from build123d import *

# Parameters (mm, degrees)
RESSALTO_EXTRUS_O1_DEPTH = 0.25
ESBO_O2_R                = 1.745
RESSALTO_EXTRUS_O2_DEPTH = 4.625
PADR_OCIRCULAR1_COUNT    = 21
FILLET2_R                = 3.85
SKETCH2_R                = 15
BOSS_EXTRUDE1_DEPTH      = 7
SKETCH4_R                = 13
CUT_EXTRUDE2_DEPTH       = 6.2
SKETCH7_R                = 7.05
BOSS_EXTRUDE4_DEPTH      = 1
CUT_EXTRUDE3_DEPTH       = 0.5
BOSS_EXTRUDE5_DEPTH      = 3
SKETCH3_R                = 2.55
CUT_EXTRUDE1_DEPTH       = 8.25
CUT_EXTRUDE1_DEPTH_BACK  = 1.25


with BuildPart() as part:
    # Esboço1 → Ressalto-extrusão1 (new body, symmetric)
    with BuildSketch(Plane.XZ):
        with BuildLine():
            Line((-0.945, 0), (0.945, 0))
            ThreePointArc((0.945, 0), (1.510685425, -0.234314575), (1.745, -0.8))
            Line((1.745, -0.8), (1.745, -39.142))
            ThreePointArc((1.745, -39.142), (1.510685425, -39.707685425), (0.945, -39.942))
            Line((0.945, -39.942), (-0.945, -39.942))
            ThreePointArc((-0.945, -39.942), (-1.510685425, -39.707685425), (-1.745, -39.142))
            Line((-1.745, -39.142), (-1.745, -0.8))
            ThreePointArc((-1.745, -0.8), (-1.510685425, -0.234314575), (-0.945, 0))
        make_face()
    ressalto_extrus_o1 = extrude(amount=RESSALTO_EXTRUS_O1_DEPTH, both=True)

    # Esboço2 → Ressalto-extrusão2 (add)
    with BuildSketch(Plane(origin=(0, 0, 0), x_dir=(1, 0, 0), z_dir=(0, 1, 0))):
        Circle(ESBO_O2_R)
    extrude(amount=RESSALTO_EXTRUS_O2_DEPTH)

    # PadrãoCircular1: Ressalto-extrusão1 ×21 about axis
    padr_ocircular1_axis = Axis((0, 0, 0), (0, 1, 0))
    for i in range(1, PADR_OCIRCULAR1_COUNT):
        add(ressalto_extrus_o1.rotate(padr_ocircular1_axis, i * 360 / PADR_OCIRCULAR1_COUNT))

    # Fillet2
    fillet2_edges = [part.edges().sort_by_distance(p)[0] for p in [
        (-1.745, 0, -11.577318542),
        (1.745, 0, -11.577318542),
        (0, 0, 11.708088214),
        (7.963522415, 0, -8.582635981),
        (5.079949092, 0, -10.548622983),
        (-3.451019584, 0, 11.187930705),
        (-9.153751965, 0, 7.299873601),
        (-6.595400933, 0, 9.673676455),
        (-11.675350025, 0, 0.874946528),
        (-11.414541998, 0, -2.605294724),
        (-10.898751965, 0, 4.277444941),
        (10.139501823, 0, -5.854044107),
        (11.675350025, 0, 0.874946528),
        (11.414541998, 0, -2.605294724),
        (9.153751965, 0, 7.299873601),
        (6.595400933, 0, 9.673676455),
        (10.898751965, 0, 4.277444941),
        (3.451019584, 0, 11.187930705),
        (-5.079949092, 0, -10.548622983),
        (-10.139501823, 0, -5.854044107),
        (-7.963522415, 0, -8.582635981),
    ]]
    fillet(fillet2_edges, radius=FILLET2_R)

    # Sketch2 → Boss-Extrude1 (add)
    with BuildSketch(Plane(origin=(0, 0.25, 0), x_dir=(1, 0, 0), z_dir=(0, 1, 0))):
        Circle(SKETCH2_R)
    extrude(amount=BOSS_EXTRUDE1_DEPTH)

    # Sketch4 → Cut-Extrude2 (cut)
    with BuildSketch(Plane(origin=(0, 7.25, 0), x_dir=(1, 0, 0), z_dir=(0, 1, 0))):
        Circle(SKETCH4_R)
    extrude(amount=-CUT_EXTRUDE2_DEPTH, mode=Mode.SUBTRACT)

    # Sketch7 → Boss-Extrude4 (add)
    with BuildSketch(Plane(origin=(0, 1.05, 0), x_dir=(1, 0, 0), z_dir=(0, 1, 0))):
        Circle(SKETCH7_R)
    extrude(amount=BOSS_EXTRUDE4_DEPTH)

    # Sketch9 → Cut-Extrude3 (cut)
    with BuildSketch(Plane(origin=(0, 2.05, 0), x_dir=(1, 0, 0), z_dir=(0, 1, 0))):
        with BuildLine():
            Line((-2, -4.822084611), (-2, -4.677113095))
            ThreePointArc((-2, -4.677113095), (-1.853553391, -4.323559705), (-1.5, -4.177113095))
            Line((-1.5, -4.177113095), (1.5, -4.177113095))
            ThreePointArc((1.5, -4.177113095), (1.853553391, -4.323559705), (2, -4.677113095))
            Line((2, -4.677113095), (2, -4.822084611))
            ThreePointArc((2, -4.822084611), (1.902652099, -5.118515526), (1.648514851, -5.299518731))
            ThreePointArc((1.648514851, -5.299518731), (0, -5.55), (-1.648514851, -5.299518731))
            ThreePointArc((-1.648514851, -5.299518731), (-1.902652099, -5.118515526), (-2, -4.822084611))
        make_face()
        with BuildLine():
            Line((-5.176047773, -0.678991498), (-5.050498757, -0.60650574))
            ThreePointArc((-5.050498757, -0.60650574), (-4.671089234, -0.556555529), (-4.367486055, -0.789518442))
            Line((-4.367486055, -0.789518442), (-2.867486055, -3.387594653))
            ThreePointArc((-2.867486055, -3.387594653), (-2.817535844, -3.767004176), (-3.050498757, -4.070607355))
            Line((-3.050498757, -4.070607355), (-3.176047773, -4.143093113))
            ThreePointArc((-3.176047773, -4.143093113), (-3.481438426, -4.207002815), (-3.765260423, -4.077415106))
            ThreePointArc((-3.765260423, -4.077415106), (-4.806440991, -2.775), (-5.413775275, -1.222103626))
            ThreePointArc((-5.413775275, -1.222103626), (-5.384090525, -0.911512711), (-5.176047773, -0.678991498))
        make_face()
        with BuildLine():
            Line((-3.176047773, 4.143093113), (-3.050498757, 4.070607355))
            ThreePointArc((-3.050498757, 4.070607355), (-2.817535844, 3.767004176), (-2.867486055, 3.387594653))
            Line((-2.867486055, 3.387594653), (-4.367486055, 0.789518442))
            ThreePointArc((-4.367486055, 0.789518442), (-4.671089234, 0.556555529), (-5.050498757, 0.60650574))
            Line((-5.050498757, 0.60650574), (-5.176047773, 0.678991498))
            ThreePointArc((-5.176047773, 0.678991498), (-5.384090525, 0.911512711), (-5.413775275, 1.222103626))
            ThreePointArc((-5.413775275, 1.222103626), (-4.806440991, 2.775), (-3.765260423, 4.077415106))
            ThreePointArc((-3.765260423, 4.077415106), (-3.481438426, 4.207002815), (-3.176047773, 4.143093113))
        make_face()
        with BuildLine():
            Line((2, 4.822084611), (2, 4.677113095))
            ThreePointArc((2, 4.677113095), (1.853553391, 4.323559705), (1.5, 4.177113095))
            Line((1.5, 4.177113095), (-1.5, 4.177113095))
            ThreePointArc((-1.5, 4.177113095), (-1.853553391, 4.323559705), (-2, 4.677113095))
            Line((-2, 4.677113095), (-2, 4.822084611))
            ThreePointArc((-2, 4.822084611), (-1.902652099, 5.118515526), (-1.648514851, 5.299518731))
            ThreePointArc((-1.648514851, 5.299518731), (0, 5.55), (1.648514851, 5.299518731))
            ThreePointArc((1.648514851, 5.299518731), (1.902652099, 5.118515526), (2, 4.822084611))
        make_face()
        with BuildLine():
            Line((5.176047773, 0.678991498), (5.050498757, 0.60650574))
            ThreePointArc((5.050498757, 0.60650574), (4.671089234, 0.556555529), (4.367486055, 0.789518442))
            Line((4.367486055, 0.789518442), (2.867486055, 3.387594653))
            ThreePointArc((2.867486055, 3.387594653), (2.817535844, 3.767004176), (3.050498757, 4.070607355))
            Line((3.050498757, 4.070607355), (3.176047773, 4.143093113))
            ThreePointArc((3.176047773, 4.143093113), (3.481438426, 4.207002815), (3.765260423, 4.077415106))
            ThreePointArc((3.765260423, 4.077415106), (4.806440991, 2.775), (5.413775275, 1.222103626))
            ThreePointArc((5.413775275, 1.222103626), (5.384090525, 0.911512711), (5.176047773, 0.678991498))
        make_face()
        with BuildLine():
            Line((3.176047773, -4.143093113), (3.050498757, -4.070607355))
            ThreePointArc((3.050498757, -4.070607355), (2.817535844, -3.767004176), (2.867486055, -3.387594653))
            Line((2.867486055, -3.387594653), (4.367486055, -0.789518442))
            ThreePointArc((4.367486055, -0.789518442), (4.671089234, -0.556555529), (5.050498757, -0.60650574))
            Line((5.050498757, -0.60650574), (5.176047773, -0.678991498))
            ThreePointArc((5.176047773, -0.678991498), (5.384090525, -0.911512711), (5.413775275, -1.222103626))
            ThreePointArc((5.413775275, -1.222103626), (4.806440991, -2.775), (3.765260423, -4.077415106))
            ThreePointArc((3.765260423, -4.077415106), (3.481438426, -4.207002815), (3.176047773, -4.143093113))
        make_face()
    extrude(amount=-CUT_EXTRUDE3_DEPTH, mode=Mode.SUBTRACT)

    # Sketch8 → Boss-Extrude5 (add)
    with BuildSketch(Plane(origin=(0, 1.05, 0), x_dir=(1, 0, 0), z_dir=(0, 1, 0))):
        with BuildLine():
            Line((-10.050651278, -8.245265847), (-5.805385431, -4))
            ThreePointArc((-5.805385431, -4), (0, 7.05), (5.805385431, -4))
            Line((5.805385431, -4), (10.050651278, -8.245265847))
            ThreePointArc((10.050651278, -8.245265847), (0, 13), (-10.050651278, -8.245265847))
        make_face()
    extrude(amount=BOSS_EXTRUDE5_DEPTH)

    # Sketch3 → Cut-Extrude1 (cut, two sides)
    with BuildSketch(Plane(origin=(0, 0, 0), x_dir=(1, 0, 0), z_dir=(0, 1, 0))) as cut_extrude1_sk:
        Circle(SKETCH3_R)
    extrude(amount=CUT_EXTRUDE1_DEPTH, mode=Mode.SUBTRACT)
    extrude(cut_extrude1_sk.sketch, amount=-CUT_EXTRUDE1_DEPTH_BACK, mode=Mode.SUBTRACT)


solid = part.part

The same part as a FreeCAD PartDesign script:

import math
import FreeCAD as App
import Part
import Sketcher
Q = App.Units.Quantity


def edges_at(feature, points):
    """Names of the edges that pass closest to the given points."""
    edges = feature.Shape.Edges
    near = lambda p: min(range(len(edges)), key=lambda i: edges[i].distToShape(Part.Vertex(*p))[0])
    return sorted({f"Edge{near(p) + 1}" for p in points})

doc = App.newDocument("Part")
body = doc.addObject("PartDesign::Body", "Body")

# Sketch on XZ plane
sketch1 = doc.addObject("Sketcher::SketchObject", "Sketch")
body.addObject(sketch1)
sketch1.AttachmentSupport = (doc.XZ_Plane, [""])
sketch1.MapMode = "FlatFace"
sketch1.addGeometry(Part.LineSegment(App.Vector(0.9, 0, 0), App.Vector(-0.9, 0, 0)), False)
sketch1.addGeometry(Part.ArcOfCircle(Part.Circle(App.Vector(-0.9, -0.8, 0), App.Vector(0, 0, 1), 0.8), math.radians(90), math.radians(180)), False)
sketch1.addGeometry(Part.LineSegment(App.Vector(-1.7, -0.8, 0), App.Vector(-1.7, -39.1, 0)), False)
sketch1.addGeometry(Part.ArcOfCircle(Part.Circle(App.Vector(-0.9, -39.1, 0), App.Vector(0, 0, 1), 0.8), math.radians(180), math.radians(270)), False)
sketch1.addGeometry(Part.LineSegment(App.Vector(-0.9, -39.9, 0), App.Vector(0.9, -39.9, 0)), False)
sketch1.addGeometry(Part.ArcOfCircle(Part.Circle(App.Vector(0.9, -39.1, 0), App.Vector(0, 0, 1), 0.8), math.radians(-90), math.radians(0)), False)
sketch1.addGeometry(Part.LineSegment(App.Vector(1.7, -39.1, 0), App.Vector(1.7, -0.8, 0)), False)
sketch1.addGeometry(Part.ArcOfCircle(Part.Circle(App.Vector(0.9, -0.8, 0), App.Vector(0, 0, 1), 0.8), math.radians(0), math.radians(90)), False)
sketch1.addConstraint(Sketcher.Constraint("Tangent", 0, 2, 1, 1))
sketch1.addConstraint(Sketcher.Constraint("Tangent", 1, 2, 2, 1))
sketch1.addConstraint(Sketcher.Constraint("Tangent", 2, 2, 3, 1))
sketch1.addConstraint(Sketcher.Constraint("Tangent", 3, 2, 4, 1))
sketch1.addConstraint(Sketcher.Constraint("Tangent", 4, 2, 5, 1))
sketch1.addConstraint(Sketcher.Constraint("Tangent", 5, 2, 6, 1))
sketch1.addConstraint(Sketcher.Constraint("Tangent", 6, 2, 7, 1))
sketch1.addConstraint(Sketcher.Constraint("Tangent", 7, 2, 0, 1))
sketch1.addConstraint(Sketcher.Constraint("Horizontal", 0))
sketch1.addConstraint(Sketcher.Constraint("Vertical", 2))
sketch1.addConstraint(Sketcher.Constraint("Horizontal", 4))
sketch1.addConstraint(Sketcher.Constraint("Vertical", 6))
sketch1.addConstraint(Sketcher.Constraint("Equal", 1, 3))
sketch1.addConstraint(Sketcher.Constraint("Equal", 3, 5))
sketch1.addConstraint(Sketcher.Constraint("Equal", 5, 7))
sketch1.addConstraint(Sketcher.Constraint("Symmetric", 0, 2, 7, 2, -1, 1))
sketch1.addConstraint(Sketcher.Constraint("Radius", 1, 0.8))
sketch1.addConstraint(Sketcher.Constraint("DistanceX", 0, 2, 0, 1, 1.89))
sketch1.addConstraint(Sketcher.Constraint("DistanceY", 2, 2, 2, 1, 38.342))
pad1 = doc.addObject("PartDesign::Pad", "Pad")
body.addObject(pad1)
pad1.Profile = sketch1
pad1.Length = 0.5
pad1.Midplane = True

# Sketch on XZ plane
sketch2 = doc.addObject("Sketcher::SketchObject", "Sketch001")
body.addObject(sketch2)
sketch2.AttachmentSupport = (doc.XZ_Plane, [""])
sketch2.MapMode = "FlatFace"
sketch2.addGeometry(Part.Circle(App.Vector(0, 0, 0), App.Vector(0, 0, 1), 1.7), False)
sketch2.addConstraint(Sketcher.Constraint("Coincident", 0, 3, -1, 1))
sketch2.addConstraint(Sketcher.Constraint("Diameter", 0, 3.49))
pad2 = doc.addObject("PartDesign::Pad", "Pad001")
body.addObject(pad2)
pad2.Profile = sketch2
pad2.Length = 4.625
pad2.Reversed = True
doc.recompute()

polarpattern = doc.addObject("PartDesign::PolarPattern", "PolarPattern")
body.addObject(polarpattern)
polarpattern.Originals = [pad1]
polarpattern.Axis = (doc.Y_Axis, [""])
polarpattern.Angle = 360
polarpattern.Occurrences = 21
body.Tip = polarpattern
doc.recompute()

fillet = doc.addObject("PartDesign::Fillet", "Fillet")
body.addObject(fillet)
fillet.Base = (polarpattern, edges_at(polarpattern, [
    (-1.745, 0, -11.577),
    (1.745, 0, -11.577),
    (0, 0, 11.708),
    (7.964, 0, -8.583),
    (5.08, 0, -10.549),
    (-3.451, 0, 11.188),
    (-9.154, 0, 7.3),
    (-6.595, 0, 9.674),
    (-11.675, 0, 0.875),
    (-11.415, 0, -2.605),
    (-10.899, 0, 4.277),
    (10.14, 0, -5.854),
    (11.675, 0, 0.875),
    (11.415, 0, -2.605),
    (9.154, 0, 7.3),
    (6.595, 0, 9.674),
    (10.899, 0, 4.277),
    (3.451, 0, 11.188),
    (-5.08, 0, -10.549),
    (-10.14, 0, -5.854),
    (-7.964, 0, -8.583),
]))
fillet.Radius = 3.85

# Sketch on XZ plane
sketch3 = doc.addObject("Sketcher::SketchObject", "Sketch002")
body.addObject(sketch3)
sketch3.AttachmentSupport = (doc.XZ_Plane, [""])
sketch3.MapMode = "FlatFace"
sketch3.AttachmentOffset = App.Placement(App.Vector(0, 0, -0.25), App.Rotation())
sketch3.addGeometry(Part.Circle(App.Vector(0, 0, 0), App.Vector(0, 0, 1), 15), False)
sketch3.addConstraint(Sketcher.Constraint("Coincident", 0, 3, -1, 1))
sketch3.addConstraint(Sketcher.Constraint("Diameter", 0, 30.0))
pad3 = doc.addObject("PartDesign::Pad", "Pad002")
body.addObject(pad3)
pad3.Profile = sketch3
pad3.Length = 7
pad3.Reversed = True

# Sketch on XZ plane
sketch4 = doc.addObject("Sketcher::SketchObject", "Sketch003")
body.addObject(sketch4)
sketch4.AttachmentSupport = (doc.XZ_Plane, [""])
sketch4.MapMode = "FlatFace"
sketch4.AttachmentOffset = App.Placement(App.Vector(0, 0, -7.25), App.Rotation())
sketch4.addGeometry(Part.Circle(App.Vector(0, 0, 0), App.Vector(0, 0, 1), 13), False)
sketch4.addConstraint(Sketcher.Constraint("Coincident", 0, 3, -1, 1))
sketch4.addConstraint(Sketcher.Constraint("Diameter", 0, 26.0))
pocket1 = doc.addObject("PartDesign::Pocket", "Pocket")
body.addObject(pocket1)
pocket1.Profile = sketch4
pocket1.Length = 6.2
pocket1.Reversed = True

# Sketch on XZ plane
sketch5 = doc.addObject("Sketcher::SketchObject", "Sketch004")
body.addObject(sketch5)
sketch5.AttachmentSupport = (doc.XZ_Plane, [""])
sketch5.MapMode = "FlatFace"
sketch5.AttachmentOffset = App.Placement(App.Vector(0, 0, -1.05), App.Rotation())
sketch5.addGeometry(Part.Circle(App.Vector(0, 0, 0), App.Vector(0, 0, 1), 7), False)
sketch5.addConstraint(Sketcher.Constraint("Coincident", 0, 3, -1, 1))
sketch5.addConstraint(Sketcher.Constraint("Diameter", 0, 14.1))
pad4 = doc.addObject("PartDesign::Pad", "Pad003")
body.addObject(pad4)
pad4.Profile = sketch5
pad4.Length = 1
pad4.Reversed = True

# Sketch on XZ plane
sketch6 = doc.addObject("Sketcher::SketchObject", "Sketch005")
body.addObject(sketch6)
sketch6.AttachmentSupport = (doc.XZ_Plane, [""])
sketch6.MapMode = "FlatFace"
sketch6.AttachmentOffset = App.Placement(App.Vector(0, 0, -2.05), App.Rotation())
sketch6.addGeometry(Part.LineSegment(App.Vector(-2, 4.68, 0), App.Vector(-2, 4.82, 0)), False)
sketch6.addGeometry(Part.ArcOfCircle(Part.Circle(App.Vector(-1.5, 4.82, 0), App.Vector(0, 0, 1), 0.5), math.radians(107), math.radians(180)), False)
sketch6.addGeometry(Part.ArcOfCircle(Part.Circle(App.Vector(0, 0, 0), App.Vector(0, 0, 1), 5.55), math.radians(73), math.radians(107)), False)
sketch6.addGeometry(Part.ArcOfCircle(Part.Circle(App.Vector(1.5, 4.82, 0), App.Vector(0, 0, 1), 0.5), math.radians(0), math.radians(73)), False)
sketch6.addGeometry(Part.LineSegment(App.Vector(2, 4.82, 0), App.Vector(2, 4.68, 0)), False)
sketch6.addGeometry(Part.ArcOfCircle(Part.Circle(App.Vector(1.5, 4.68, 0), App.Vector(0, 0, 1), 0.5), math.radians(-90), math.radians(0)), False)
sketch6.addGeometry(Part.LineSegment(App.Vector(1.5, 4.18, 0), App.Vector(-1.5, 4.18, 0)), False)
sketch6.addGeometry(Part.ArcOfCircle(Part.Circle(App.Vector(-1.5, 4.68, 0), App.Vector(0, 0, 1), 0.5), math.radians(180), math.radians(270)), False)
sketch6.addGeometry(Part.LineSegment(App.Vector(-5.05, 0.61, 0), App.Vector(-5.18, 0.68, 0)), False)
sketch6.addGeometry(Part.ArcOfCircle(Part.Circle(App.Vector(-4.93, 1.11, 0), App.Vector(0, 0, 1), 0.5), math.radians(167), math.radians(240)), False)
sketch6.addGeometry(Part.ArcOfCircle(Part.Circle(App.Vector(0, 0, 0), App.Vector(0, 0, 1), 5.55), math.radians(133), math.radians(167)), False)
sketch6.addGeometry(Part.ArcOfCircle(Part.Circle(App.Vector(-3.43, 3.71, 0), App.Vector(0, 0, 1), 0.5), math.radians(60), math.radians(133)), False)
sketch6.addGeometry(Part.LineSegment(App.Vector(-3.18, 4.14, 0), App.Vector(-3.05, 4.07, 0)), False)
sketch6.addGeometry(Part.ArcOfCircle(Part.Circle(App.Vector(-3.3, 3.64, 0), App.Vector(0, 0, 1), 0.5), math.radians(-30), math.radians(60)), False)
sketch6.addGeometry(Part.LineSegment(App.Vector(-2.87, 3.39, 0), App.Vector(-4.37, 0.79, 0)), False)
sketch6.addGeometry(Part.ArcOfCircle(Part.Circle(App.Vector(-4.8, 1.04, 0), App.Vector(0, 0, 1), 0.5), math.radians(-120), math.radians(-30)), False)
sketch6.addGeometry(Part.LineSegment(App.Vector(-3.05, -4.07, 0), App.Vector(-3.18, -4.14, 0)), False)
sketch6.addGeometry(Part.ArcOfCircle(Part.Circle(App.Vector(-3.43, -3.71, 0), App.Vector(0, 0, 1), 0.5), math.radians(-133), math.radians(-60)), False)
sketch6.addGeometry(Part.ArcOfCircle(Part.Circle(App.Vector(0, 0, 0), App.Vector(0, 0, 1), 5.55), math.radians(-167), math.radians(-133)), False)
sketch6.addGeometry(Part.ArcOfCircle(Part.Circle(App.Vector(-4.93, -1.11, 0), App.Vector(0, 0, 1), 0.5), math.radians(120), math.radians(193)), False)
sketch6.addGeometry(Part.LineSegment(App.Vector(-5.18, -0.68, 0), App.Vector(-5.05, -0.61, 0)), False)
sketch6.addGeometry(Part.ArcOfCircle(Part.Circle(App.Vector(-4.8, -1.04, 0), App.Vector(0, 0, 1), 0.5), math.radians(30), math.radians(120)), False)
sketch6.addGeometry(Part.LineSegment(App.Vector(-4.37, -0.79, 0), App.Vector(-2.87, -3.39, 0)), False)
sketch6.addGeometry(Part.ArcOfCircle(Part.Circle(App.Vector(-3.3, -3.64, 0), App.Vector(0, 0, 1), 0.5), math.radians(-60), math.radians(30)), False)
sketch6.addGeometry(Part.LineSegment(App.Vector(2, -4.68, 0), App.Vector(2, -4.82, 0)), False)
sketch6.addGeometry(Part.ArcOfCircle(Part.Circle(App.Vector(1.5, -4.82, 0), App.Vector(0, 0, 1), 0.5), math.radians(-73), math.radians(0)), False)
sketch6.addGeometry(Part.ArcOfCircle(Part.Circle(App.Vector(0, 0, 0), App.Vector(0, 0, 1), 5.55), math.radians(-107), math.radians(-73)), False)
sketch6.addGeometry(Part.ArcOfCircle(Part.Circle(App.Vector(-1.5, -4.82, 0), App.Vector(0, 0, 1), 0.5), math.radians(180), math.radians(253)), False)
sketch6.addGeometry(Part.LineSegment(App.Vector(-2, -4.82, 0), App.Vector(-2, -4.68, 0)), False)
sketch6.addGeometry(Part.ArcOfCircle(Part.Circle(App.Vector(-1.5, -4.68, 0), App.Vector(0, 0, 1), 0.5), math.radians(90), math.radians(180)), False)
sketch6.addGeometry(Part.LineSegment(App.Vector(-1.5, -4.18, 0), App.Vector(1.5, -4.18, 0)), False)
sketch6.addGeometry(Part.ArcOfCircle(Part.Circle(App.Vector(1.5, -4.68, 0), App.Vector(0, 0, 1), 0.5), math.radians(0), math.radians(90)), False)
sketch6.addGeometry(Part.LineSegment(App.Vector(5.05, -0.61, 0), App.Vector(5.18, -0.68, 0)), False)
sketch6.addGeometry(Part.ArcOfCircle(Part.Circle(App.Vector(4.93, -1.11, 0), App.Vector(0, 0, 1), 0.5), math.radians(-13), math.radians(60)), False)
sketch6.addGeometry(Part.ArcOfCircle(Part.Circle(App.Vector(0, 0, 0), App.Vector(0, 0, 1), 5.55), math.radians(-47), math.radians(-13)), False)
sketch6.addGeometry(Part.ArcOfCircle(Part.Circle(App.Vector(3.43, -3.71, 0), App.Vector(0, 0, 1), 0.5), math.radians(-120), math.radians(-47)), False)
sketch6.addGeometry(Part.LineSegment(App.Vector(3.18, -4.14, 0), App.Vector(3.05, -4.07, 0)), False)
sketch6.addGeometry(Part.ArcOfCircle(Part.Circle(App.Vector(3.3, -3.64, 0), App.Vector(0, 0, 1), 0.5), math.radians(150), math.radians(240)), False)
sketch6.addGeometry(Part.LineSegment(App.Vector(2.87, -3.39, 0), App.Vector(4.37, -0.79, 0)), False)
sketch6.addGeometry(Part.ArcOfCircle(Part.Circle(App.Vector(4.8, -1.04, 0), App.Vector(0, 0, 1), 0.5), math.radians(60), math.radians(150)), False)
sketch6.addGeometry(Part.LineSegment(App.Vector(3.05, 4.07, 0), App.Vector(3.18, 4.14, 0)), False)
sketch6.addGeometry(Part.ArcOfCircle(Part.Circle(App.Vector(3.43, 3.71, 0), App.Vector(0, 0, 1), 0.5), math.radians(47), math.radians(120)), False)
sketch6.addGeometry(Part.ArcOfCircle(Part.Circle(App.Vector(0, 0, 0), App.Vector(0, 0, 1), 5.55), math.radians(13), math.radians(47)), False)
sketch6.addGeometry(Part.ArcOfCircle(Part.Circle(App.Vector(4.93, 1.11, 0), App.Vector(0, 0, 1), 0.5), math.radians(-60), math.radians(13)), False)
sketch6.addGeometry(Part.LineSegment(App.Vector(5.18, 0.68, 0), App.Vector(5.05, 0.61, 0)), False)
sketch6.addGeometry(Part.ArcOfCircle(Part.Circle(App.Vector(4.8, 1.04, 0), App.Vector(0, 0, 1), 0.5), math.radians(-150), math.radians(-60)), False)
sketch6.addGeometry(Part.LineSegment(App.Vector(4.37, 0.79, 0), App.Vector(2.87, 3.39, 0)), False)
sketch6.addGeometry(Part.ArcOfCircle(Part.Circle(App.Vector(3.3, 3.64, 0), App.Vector(0, 0, 1), 0.5), math.radians(120), math.radians(210)), False)
sketch6.addConstraint(Sketcher.Constraint("Tangent", 0, 2, 1, 2))
sketch6.addConstraint(Sketcher.Constraint("Tangent", 1, 1, 2, 2))
sketch6.addConstraint(Sketcher.Constraint("Tangent", 2, 1, 3, 2))
sketch6.addConstraint(Sketcher.Constraint("Tangent", 3, 1, 4, 1))
sketch6.addConstraint(Sketcher.Constraint("Tangent", 4, 2, 5, 2))
sketch6.addConstraint(Sketcher.Constraint("Tangent", 5, 1, 6, 1))
sketch6.addConstraint(Sketcher.Constraint("Tangent", 6, 2, 7, 2))
sketch6.addConstraint(Sketcher.Constraint("Tangent", 7, 1, 0, 1))
sketch6.addConstraint(Sketcher.Constraint("Tangent", 8, 2, 9, 2))
sketch6.addConstraint(Sketcher.Constraint("Tangent", 9, 1, 10, 2))
sketch6.addConstraint(Sketcher.Constraint("Tangent", 10, 1, 11, 2))
sketch6.addConstraint(Sketcher.Constraint("Tangent", 11, 1, 12, 1))
sketch6.addConstraint(Sketcher.Constraint("Tangent", 12, 2, 13, 2))
sketch6.addConstraint(Sketcher.Constraint("Tangent", 13, 1, 14, 1))
sketch6.addConstraint(Sketcher.Constraint("Tangent", 14, 2, 15, 2))
sketch6.addConstraint(Sketcher.Constraint("Tangent", 15, 1, 8, 1))
sketch6.addConstraint(Sketcher.Constraint("Tangent", 16, 2, 17, 2))
sketch6.addConstraint(Sketcher.Constraint("Tangent", 17, 1, 18, 2))
sketch6.addConstraint(Sketcher.Constraint("Tangent", 18, 1, 19, 2))
sketch6.addConstraint(Sketcher.Constraint("Tangent", 19, 1, 20, 1))
sketch6.addConstraint(Sketcher.Constraint("Tangent", 20, 2, 21, 2))
sketch6.addConstraint(Sketcher.Constraint("Tangent", 21, 1, 22, 1))
sketch6.addConstraint(Sketcher.Constraint("Tangent", 22, 2, 23, 2))
sketch6.addConstraint(Sketcher.Constraint("Tangent", 23, 1, 16, 1))
sketch6.addConstraint(Sketcher.Constraint("Tangent", 24, 2, 25, 2))
sketch6.addConstraint(Sketcher.Constraint("Tangent", 25, 1, 26, 2))
sketch6.addConstraint(Sketcher.Constraint("Tangent", 26, 1, 27, 2))
sketch6.addConstraint(Sketcher.Constraint("Tangent", 27, 1, 28, 1))
sketch6.addConstraint(Sketcher.Constraint("Tangent", 28, 2, 29, 2))
sketch6.addConstraint(Sketcher.Constraint("Tangent", 29, 1, 30, 1))
sketch6.addConstraint(Sketcher.Constraint("Tangent", 30, 2, 31, 2))
sketch6.addConstraint(Sketcher.Constraint("Tangent", 31, 1, 24, 1))
sketch6.addConstraint(Sketcher.Constraint("Tangent", 32, 2, 33, 2))
sketch6.addConstraint(Sketcher.Constraint("Tangent", 33, 1, 34, 2))
sketch6.addConstraint(Sketcher.Constraint("Tangent", 34, 1, 35, 2))
sketch6.addConstraint(Sketcher.Constraint("Tangent", 35, 1, 36, 1))
sketch6.addConstraint(Sketcher.Constraint("Tangent", 36, 2, 37, 2))
sketch6.addConstraint(Sketcher.Constraint("Tangent", 37, 1, 38, 1))
sketch6.addConstraint(Sketcher.Constraint("Tangent", 38, 2, 39, 2))
sketch6.addConstraint(Sketcher.Constraint("Tangent", 39, 1, 32, 1))
sketch6.addConstraint(Sketcher.Constraint("Tangent", 40, 2, 41, 2))
sketch6.addConstraint(Sketcher.Constraint("Tangent", 41, 1, 42, 2))
sketch6.addConstraint(Sketcher.Constraint("Tangent", 42, 1, 43, 2))
sketch6.addConstraint(Sketcher.Constraint("Tangent", 43, 1, 44, 1))
sketch6.addConstraint(Sketcher.Constraint("Tangent", 44, 2, 45, 2))
sketch6.addConstraint(Sketcher.Constraint("Tangent", 45, 1, 46, 1))
sketch6.addConstraint(Sketcher.Constraint("Tangent", 46, 2, 47, 2))
sketch6.addConstraint(Sketcher.Constraint("Tangent", 47, 1, 40, 1))
sketch6.addConstraint(Sketcher.Constraint("Vertical", 0))
sketch6.addConstraint(Sketcher.Constraint("Vertical", 4))
sketch6.addConstraint(Sketcher.Constraint("Horizontal", 6))
sketch6.addConstraint(Sketcher.Constraint("Vertical", 24))
sketch6.addConstraint(Sketcher.Constraint("Vertical", 28))
sketch6.addConstraint(Sketcher.Constraint("Horizontal", 30))
sketch6.addConstraint(Sketcher.Constraint("Coincident", 2, 3, -1, 1))
sketch6.addConstraint(Sketcher.Constraint("Coincident", 10, 3, -1, 1))
sketch6.addConstraint(Sketcher.Constraint("Coincident", 18, 3, -1, 1))
sketch6.addConstraint(Sketcher.Constraint("Coincident", 26, 3, -1, 1))
sketch6.addConstraint(Sketcher.Constraint("Coincident", 34, 3, -1, 1))
sketch6.addConstraint(Sketcher.Constraint("Coincident", 42, 3, -1, 1))
sketch6.addConstraint(Sketcher.Constraint("Equal", 1, 3))
sketch6.addConstraint(Sketcher.Constraint("Equal", 3, 5))
sketch6.addConstraint(Sketcher.Constraint("Equal", 5, 7))
sketch6.addConstraint(Sketcher.Constraint("Equal", 7, 9))
sketch6.addConstraint(Sketcher.Constraint("Equal", 2, 10))
sketch6.addConstraint(Sketcher.Constraint("Equal", 9, 11))
sketch6.addConstraint(Sketcher.Constraint("Equal", 11, 13))
sketch6.addConstraint(Sketcher.Constraint("Equal", 13, 15))
sketch6.addConstraint(Sketcher.Constraint("Equal", 15, 17))
sketch6.addConstraint(Sketcher.Constraint("Equal", 10, 18))
sketch6.addConstraint(Sketcher.Constraint("Equal", 17, 19))
sketch6.addConstraint(Sketcher.Constraint("Equal", 19, 21))
sketch6.addConstraint(Sketcher.Constraint("Equal", 21, 23))
sketch6.addConstraint(Sketcher.Constraint("Equal", 23, 25))
sketch6.addConstraint(Sketcher.Constraint("Equal", 18, 26))
sketch6.addConstraint(Sketcher.Constraint("Equal", 25, 27))
sketch6.addConstraint(Sketcher.Constraint("Equal", 27, 29))
sketch6.addConstraint(Sketcher.Constraint("Equal", 29, 31))
sketch6.addConstraint(Sketcher.Constraint("Equal", 31, 33))
sketch6.addConstraint(Sketcher.Constraint("Equal", 26, 34))
sketch6.addConstraint(Sketcher.Constraint("Equal", 33, 35))
sketch6.addConstraint(Sketcher.Constraint("Equal", 35, 37))
sketch6.addConstraint(Sketcher.Constraint("Equal", 37, 39))
sketch6.addConstraint(Sketcher.Constraint("Equal", 39, 41))
sketch6.addConstraint(Sketcher.Constraint("Equal", 34, 42))
sketch6.addConstraint(Sketcher.Constraint("Equal", 41, 43))
sketch6.addConstraint(Sketcher.Constraint("Equal", 43, 45))
sketch6.addConstraint(Sketcher.Constraint("Equal", 45, 47))
sketch6.addConstraint(Sketcher.Constraint("Symmetric", 5, 3, 29, 3, -1, 1))
sketch6.addConstraint(Sketcher.Constraint("Symmetric", 13, 3, 37, 3, -1, 1))
sketch6.addConstraint(Sketcher.Constraint("Symmetric", 15, 3, 39, 3, -1, 1))
sketch6.addConstraint(Sketcher.Constraint("Symmetric", 21, 3, 45, 3, -1, 1))
sketch6.addConstraint(Sketcher.Constraint("Symmetric", 23, 3, 47, 3, -1, 1))
sketch6.addConstraint(Sketcher.Constraint("Symmetric", 23, 3, 37, 3, -2))
sketch6.addConstraint(Sketcher.Constraint("Symmetric", 21, 3, 39, 3, -2))
sketch6.addConstraint(Sketcher.Constraint("Parallel", 8, 12))
sketch6.addConstraint(Sketcher.Constraint("Perpendicular", 12, 14))
sketch6.addConstraint(Sketcher.Constraint("Parallel", 16, 20))
sketch6.addConstraint(Sketcher.Constraint("Perpendicular", 20, 22))
sketch6.addConstraint(Sketcher.Constraint("Perpendicular", 14, 32))
sketch6.addConstraint(Sketcher.Constraint("Parallel", 32, 36))
sketch6.addConstraint(Sketcher.Constraint("Perpendicular", 22, 40))
sketch6.addConstraint(Sketcher.Constraint("Parallel", 40, 44))
sketch6.addConstraint(Sketcher.Constraint("Horizontal", 1, 3, 3, 3))
sketch6.addConstraint(Sketcher.Constraint("Horizontal", 25, 3, 27, 3))
sketch6.addConstraint(Sketcher.Constraint("Equal", 8, 12))
sketch6.addConstraint(Sketcher.Constraint("Radius", 1, 0.5))
sketch6.addConstraint(Sketcher.Constraint("DistanceX", 6, 2, 6, 1, 3.0))
sketch6.addConstraint(Sketcher.Constraint("Angle", 8, Q("150 deg")))
sketch6.addConstraint(Sketcher.Constraint("Radius", 2, 5.55))
sketch6.addConstraint(Sketcher.Constraint("Distance", 14, 3.0))
sketch6.addConstraint(Sketcher.Constraint("DistanceY", 0, 1, 0, 2, 0.144972))
sketch6.addConstraint(Sketcher.Constraint("DistanceX", 13, 3, -1, 1, 3.300499))
pocket2 = doc.addObject("PartDesign::Pocket", "Pocket001")
body.addObject(pocket2)
pocket2.Profile = sketch6
pocket2.Length = 0.5
pocket2.Reversed = True

# Sketch on XZ plane
sketch7 = doc.addObject("Sketcher::SketchObject", "Sketch006")
body.addObject(sketch7)
sketch7.AttachmentSupport = (doc.XZ_Plane, [""])
sketch7.MapMode = "FlatFace"
sketch7.AttachmentOffset = App.Placement(App.Vector(0, 0, -1.05), App.Rotation())
sketch7.addGeometry(Part.LineSegment(App.Vector(-10, 8, 0), App.Vector(-6, 4, 0)), False)
sketch7.addGeometry(Part.ArcOfCircle(Part.Circle(App.Vector(0, 0, 0), App.Vector(0, 0, 1), 7), math.radians(145), math.radians(395)), False)
sketch7.addGeometry(Part.LineSegment(App.Vector(6, 4, 0), App.Vector(10, 8, 0)), False)
sketch7.addGeometry(Part.ArcOfCircle(Part.Circle(App.Vector(0, 0, 0), App.Vector(0, 0, 1), 13), math.radians(141), math.radians(399)), False)
sketch7.addConstraint(Sketcher.Constraint("Coincident", 0, 2, 1, 1))
sketch7.addConstraint(Sketcher.Constraint("Coincident", 1, 2, 2, 1))
sketch7.addConstraint(Sketcher.Constraint("Coincident", 2, 2, 3, 2))
sketch7.addConstraint(Sketcher.Constraint("Coincident", 3, 1, 0, 1))
sketch7.addConstraint(Sketcher.Constraint("Coincident", 1, 3, -1, 1))
sketch7.addConstraint(Sketcher.Constraint("Coincident", 3, 3, -1, 1))
sketch7.addConstraint(Sketcher.Constraint("Perpendicular", 0, 2))
sketch7.addConstraint(Sketcher.Constraint("Horizontal", 0, 2, 1, 2))
sketch7.addConstraint(Sketcher.Constraint("Horizontal", 2, 2, 3, 1))
sketch7.addConstraint(Sketcher.Constraint("Radius", 3, 13.0))
sketch7.addConstraint(Sketcher.Constraint("Radius", 1, 7.05))
sketch7.addConstraint(Sketcher.Constraint("DistanceY", -1, 1, 0, 2, 4.0))
pad5 = doc.addObject("PartDesign::Pad", "Pad004")
body.addObject(pad5)
pad5.Profile = sketch7
pad5.Length = 3
pad5.Reversed = True

# Sketch on XZ plane
sketch8 = doc.addObject("Sketcher::SketchObject", "Sketch007")
body.addObject(sketch8)
sketch8.AttachmentSupport = (doc.XZ_Plane, [""])
sketch8.MapMode = "FlatFace"
sketch8.addGeometry(Part.Circle(App.Vector(0, 0, 0), App.Vector(0, 0, 1), 2.5), False)
sketch8.addConstraint(Sketcher.Constraint("Coincident", 0, 3, -1, 1))
sketch8.addConstraint(Sketcher.Constraint("Diameter", 0, 5.1))
pocket3 = doc.addObject("PartDesign::Pocket", "Pocket002")
body.addObject(pocket3)
pocket3.Profile = sketch8
pocket3.Type = "ThroughAll"
pocket3.Midplane = True

doc.recompute()
